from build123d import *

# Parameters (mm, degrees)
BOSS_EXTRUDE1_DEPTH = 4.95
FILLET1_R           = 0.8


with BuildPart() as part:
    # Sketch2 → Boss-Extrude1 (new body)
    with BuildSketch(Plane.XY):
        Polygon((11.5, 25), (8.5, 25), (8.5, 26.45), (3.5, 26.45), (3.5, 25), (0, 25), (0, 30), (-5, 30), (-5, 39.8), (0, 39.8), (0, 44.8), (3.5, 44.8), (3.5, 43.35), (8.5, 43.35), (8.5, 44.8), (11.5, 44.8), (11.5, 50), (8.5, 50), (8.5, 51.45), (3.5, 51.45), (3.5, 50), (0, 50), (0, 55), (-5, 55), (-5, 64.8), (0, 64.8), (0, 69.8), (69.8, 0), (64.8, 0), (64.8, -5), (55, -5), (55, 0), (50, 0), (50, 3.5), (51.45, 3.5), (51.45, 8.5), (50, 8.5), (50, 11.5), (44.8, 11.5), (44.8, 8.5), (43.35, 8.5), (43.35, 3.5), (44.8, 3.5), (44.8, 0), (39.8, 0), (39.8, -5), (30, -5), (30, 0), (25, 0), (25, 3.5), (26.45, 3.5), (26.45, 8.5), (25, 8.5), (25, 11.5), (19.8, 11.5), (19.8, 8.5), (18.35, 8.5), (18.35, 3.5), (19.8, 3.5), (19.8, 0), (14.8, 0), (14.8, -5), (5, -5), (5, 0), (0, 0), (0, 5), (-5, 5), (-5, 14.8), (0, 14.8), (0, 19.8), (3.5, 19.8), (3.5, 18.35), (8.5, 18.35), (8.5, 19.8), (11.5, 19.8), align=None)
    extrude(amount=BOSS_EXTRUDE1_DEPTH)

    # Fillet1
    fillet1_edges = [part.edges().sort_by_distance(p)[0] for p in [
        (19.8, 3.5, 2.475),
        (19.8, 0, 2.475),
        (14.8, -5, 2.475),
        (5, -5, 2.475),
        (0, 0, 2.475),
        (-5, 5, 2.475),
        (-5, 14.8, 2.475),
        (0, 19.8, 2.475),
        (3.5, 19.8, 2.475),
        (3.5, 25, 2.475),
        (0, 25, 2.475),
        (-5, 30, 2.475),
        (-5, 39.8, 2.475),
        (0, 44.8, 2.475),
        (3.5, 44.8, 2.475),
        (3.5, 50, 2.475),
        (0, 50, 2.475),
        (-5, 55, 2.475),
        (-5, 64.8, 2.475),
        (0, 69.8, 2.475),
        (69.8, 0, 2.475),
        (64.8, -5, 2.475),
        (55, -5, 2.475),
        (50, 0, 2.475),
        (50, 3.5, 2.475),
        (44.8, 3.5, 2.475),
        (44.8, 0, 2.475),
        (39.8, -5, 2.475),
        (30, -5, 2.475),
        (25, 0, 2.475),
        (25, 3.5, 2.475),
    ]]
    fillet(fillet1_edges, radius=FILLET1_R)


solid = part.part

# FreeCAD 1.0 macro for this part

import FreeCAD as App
import Part
import Sketcher

V = App.Vector
Q = App.Units.Quantity


def edges_at(feature, points):
    """Names of the edges that pass closest to the given points."""
    edges = feature.Shape.Edges
    near = lambda p: min(range(len(edges)), key=lambda i: edges[i].distToShape(Part.Vertex(*p))[0])
    return sorted({f"Edge{near(p) + 1}" for p in points})


def add_polygon(sketch, points):
    """Adds a closed chain of lines whose ends are joined by coincident constraints."""
    first, n = sketch.GeometryCount, len(points)
    for a, b in zip(points, points[1:] + points[:1]):
        sketch.addGeometry(Part.LineSegment(App.Vector(*a, 0), App.Vector(*b, 0)), False)
    for i in range(n):
        sketch.addConstraint(Sketcher.Constraint("Coincident", first + i, 2, first + (i + 1) % n, 1))

doc = App.newDocument("Part")
params = doc.addObject("Spreadsheet::Sheet", "Params")
for row, (alias, value) in enumerate([
    ("sketch1_width", "3 mm"),
    ("sketch1_width2", "5 mm"),
    ("sketch1_width3", "3.5 mm"),
    ("sketch1_width4", "9.8 mm"),
    ("sketch1_width5", "5.2 mm"),
    ("pad1_length", "4.95 mm"),
    ("fillet_radius", "0.8 mm"),
], start=1):
    params.set(f"A{row}", alias)
    params.set(f"B{row}", "=" + value)
    params.setAlias(f"B{row}", alias)

body = doc.addObject("PartDesign::Body", "Body")

sketch1 = body.newObject("Sketcher::SketchObject", "Sketch")
sketch1.AttachmentSupport = (doc.getObject("XY_Plane"), [""])
sketch1.MapMode = "FlatFace"
add_polygon(sketch1, [(8.5, 25), (11.5, 25), (11.5, 19.8), (8.5, 19.8), (8.5, 18.4), (3.5, 18.4), (3.5, 19.8), (0, 19.8), (0, 14.8), (-5, 14.8), (-5, 5), (0, 5), (0, 0), (5, 0), (5, -5), (14.8, -5), (14.8, 0), (19.8, 0), (19.8, 3.5), (18.4, 3.5), (18.4, 8.5), (19.8, 8.5), (19.8, 11.5), (25, 11.5), (25, 8.5), (26.4, 8.5), (26.4, 3.5), (25, 3.5), (25, 0), (30, 0), (30, -5), (39.8, -5), (39.8, 0), (44.8, 0), (44.8, 3.5), (43.4, 3.5), (43.4, 8.5), (44.8, 8.5), (44.8, 11.5), (50, 11.5), (50, 8.5), (51.5, 8.5), (51.5, 3.5), (50, 3.5), (50, 0), (55, 0), (55, -5), (64.8, -5), (64.8, 0), (69.8, 0), (0, 69.8), (0, 64.8), (-5, 64.8), (-5, 55), (0, 55), (0, 50), (3.5, 50), (3.5, 51.5), (8.5, 51.5), (8.5, 50), (11.5, 50), (11.5, 44.8), (8.5, 44.8), (8.5, 43.4), (3.5, 43.4), (3.5, 44.8), (0, 44.8), (0, 39.8), (-5, 39.8), (-5, 30), (0, 30), (0, 25), (3.5, 25), (3.5, 26.4), (8.5, 26.4)])
sketch1.addConstraint(Sketcher.Constraint("Horizontal", 0))
sketch1.addConstraint(Sketcher.Constraint("Vertical", 1))
sketch1.addConstraint(Sketcher.Constraint("Horizontal", 2))
sketch1.addConstraint(Sketcher.Constraint("Vertical", 3))
sketch1.addConstraint(Sketcher.Constraint("Horizontal", 4))
sketch1.addConstraint(Sketcher.Constraint("Vertical", 5))
sketch1.addConstraint(Sketcher.Constraint("Horizontal", 6))
sketch1.addConstraint(Sketcher.Constraint("Vertical", 7))
sketch1.addConstraint(Sketcher.Constraint("Horizontal", 8))
sketch1.addConstraint(Sketcher.Constraint("Vertical", 9))
sketch1.addConstraint(Sketcher.Constraint("Horizontal", 10))
sketch1.addConstraint(Sketcher.Constraint("Vertical", 11))
sketch1.addConstraint(Sketcher.Constraint("Horizontal", 12))
sketch1.addConstraint(Sketcher.Constraint("Vertical", 13))
sketch1.addConstraint(Sketcher.Constraint("Horizontal", 14))
sketch1.addConstraint(Sketcher.Constraint("Vertical", 15))
sketch1.addConstraint(Sketcher.Constraint("Horizontal", 16))
sketch1.addConstraint(Sketcher.Constraint("Vertical", 17))
sketch1.addConstraint(Sketcher.Constraint("Horizontal", 18))
sketch1.addConstraint(Sketcher.Constraint("Vertical", 19))
sketch1.addConstraint(Sketcher.Constraint("Horizontal", 20))
sketch1.addConstraint(Sketcher.Constraint("Vertical", 21))
sketch1.addConstraint(Sketcher.Constraint("Horizontal", 22))
sketch1.addConstraint(Sketcher.Constraint("Vertical", 23))
sketch1.addConstraint(Sketcher.Constraint("Horizontal", 24))
sketch1.addConstraint(Sketcher.Constraint("Vertical", 25))
sketch1.addConstraint(Sketcher.Constraint("Horizontal", 26))
sketch1.addConstraint(Sketcher.Constraint("Vertical", 27))
sketch1.addConstraint(Sketcher.Constraint("Horizontal", 28))
sketch1.addConstraint(Sketcher.Constraint("Vertical", 29))
sketch1.addConstraint(Sketcher.Constraint("Horizontal", 30))
sketch1.addConstraint(Sketcher.Constraint("Vertical", 31))
sketch1.addConstraint(Sketcher.Constraint("Horizontal", 32))
sketch1.addConstraint(Sketcher.Constraint("Vertical", 33))
sketch1.addConstraint(Sketcher.Constraint("Horizontal", 34))
sketch1.addConstraint(Sketcher.Constraint("Vertical", 35))
sketch1.addConstraint(Sketcher.Constraint("Horizontal", 36))
sketch1.addConstraint(Sketcher.Constraint("Vertical", 37))
sketch1.addConstraint(Sketcher.Constraint("Horizontal", 38))
sketch1.addConstraint(Sketcher.Constraint("Vertical", 39))
sketch1.addConstraint(Sketcher.Constraint("Horizontal", 40))
sketch1.addConstraint(Sketcher.Constraint("Vertical", 41))
sketch1.addConstraint(Sketcher.Constraint("Horizontal", 42))
sketch1.addConstraint(Sketcher.Constraint("Vertical", 43))
sketch1.addConstraint(Sketcher.Constraint("Horizontal", 44))
sketch1.addConstraint(Sketcher.Constraint("Vertical", 45))
sketch1.addConstraint(Sketcher.Constraint("Horizontal", 46))
sketch1.addConstraint(Sketcher.Constraint("Vertical", 47))
sketch1.addConstraint(Sketcher.Constraint("Horizontal", 48))
sketch1.addConstraint(Sketcher.Constraint("Vertical", 50))
sketch1.addConstraint(Sketcher.Constraint("Horizontal", 51))
sketch1.addConstraint(Sketcher.Constraint("Vertical", 52))
sketch1.addConstraint(Sketcher.Constraint("Horizontal", 53))
sketch1.addConstraint(Sketcher.Constraint("Vertical", 54))
sketch1.addConstraint(Sketcher.Constraint("Horizontal", 55))
sketch1.addConstraint(Sketcher.Constraint("Vertical", 56))
sketch1.addConstraint(Sketcher.Constraint("Horizontal", 57))
sketch1.addConstraint(Sketcher.Constraint("Vertical", 58))
sketch1.addConstraint(Sketcher.Constraint("Horizontal", 59))
sketch1.addConstraint(Sketcher.Constraint("Vertical", 60))
sketch1.addConstraint(Sketcher.Constraint("Horizontal", 61))
sketch1.addConstraint(Sketcher.Constraint("Vertical", 62))
sketch1.addConstraint(Sketcher.Constraint("Horizontal", 63))
sketch1.addConstraint(Sketcher.Constraint("Vertical", 64))
sketch1.addConstraint(Sketcher.Constraint("Horizontal", 65))
sketch1.addConstraint(Sketcher.Constraint("Vertical", 66))
sketch1.addConstraint(Sketcher.Constraint("Horizontal", 67))
sketch1.addConstraint(Sketcher.Constraint("Vertical", 68))
sketch1.addConstraint(Sketcher.Constraint("Horizontal", 69))
sketch1.addConstraint(Sketcher.Constraint("Vertical", 70))
sketch1.addConstraint(Sketcher.Constraint("Horizontal", 71))
sketch1.addConstraint(Sketcher.Constraint("Vertical", 72))
sketch1.addConstraint(Sketcher.Constraint("Horizontal", 73))
sketch1.addConstraint(Sketcher.Constraint("Vertical", 74))
sketch1.addConstraint(Sketcher.Constraint("Coincident", 11, 2, -1, 1))
sketch1.addConstraint(Sketcher.Constraint("Symmetric", 9, 2, 13, 2, -1, 1))
sketch1.addConstraint(Sketcher.Constraint("PointOnObject", 6, 2, -2))
sketch1.addConstraint(Sketcher.Constraint("PointOnObject", 15, 2, -1))
sketch1.addConstraint(Sketcher.Constraint("PointOnObject", 27, 2, -1))
sketch1.addConstraint(Sketcher.Constraint("PointOnObject", 31, 2, -1))
sketch1.addConstraint(Sketcher.Constraint("PointOnObject", 43, 2, -1))
sketch1.addConstraint(Sketcher.Constraint("PointOnObject", 47, 2, -1))
sketch1.addConstraint(Sketcher.Constraint("PointOnObject", 49, 2, -2))
sketch1.addConstraint(Sketcher.Constraint("PointOnObject", 53, 2, -2))
sketch1.addConstraint(Sketcher.Constraint("PointOnObject", 65, 2, -2))
sketch1.addConstraint(Sketcher.Constraint("PointOnObject", 69, 2, -2))
sketch1.addConstraint(Sketcher.Constraint("Horizontal", 2, 2, 5, 2))
sketch1.addConstraint(Sketcher.Constraint("Horizontal", 20, 2, 23, 2))
sketch1.addConstraint(Sketcher.Constraint("Horizontal", 18, 2, 25, 2))
sketch1.addConstraint(Sketcher.Constraint("Horizontal", 14, 2, 29, 2))
sketch1.addConstraint(Sketcher.Constraint("Horizontal", 26, 2, 33, 2))
sketch1.addConstraint(Sketcher.Constraint("Horizontal", 24, 2, 35, 2))
sketch1.addConstraint(Sketcher.Constraint("Horizontal", 22, 2, 37, 2))
sketch1.addConstraint(Sketcher.Constraint("Horizontal", 36, 2, 39, 2))
sketch1.addConstraint(Sketcher.Constraint("Horizontal", 34, 2, 41, 2))
sketch1.addConstraint(Sketcher.Constraint("Horizontal", 30, 2, 45, 2))
sketch1.addConstraint(Sketcher.Constraint("Horizontal", 55, 2, 58, 2))
sketch1.addConstraint(Sketcher.Constraint("Horizontal", 61, 2, 64, 2))
sketch1.addConstraint(Sketcher.Constraint("Horizontal", 0, 2, 70, 2))
sketch1.addConstraint(Sketcher.Constraint("Vertical", 17, 2, 20, 2))
sketch1.addConstraint(Sketcher.Constraint("Vertical", 23, 2, 26, 2))
sketch1.addConstraint(Sketcher.Constraint("Vertical", 33, 2, 36, 2))
sketch1.addConstraint(Sketcher.Constraint("Vertical", 39, 2, 42, 2))
sketch1.addConstraint(Sketcher.Constraint("Vertical", 9, 2, 51, 2))
sketch1.addConstraint(Sketcher.Constraint("Vertical", 5, 2, 55, 2))
sketch1.addConstraint(Sketcher.Constraint("Vertical", 3, 2, 57, 2))
sketch1.addConstraint(Sketcher.Constraint("Vertical", 1, 2, 59, 2))
sketch1.addConstraint(Sketcher.Constraint("Vertical", 58, 2, 61, 2))
sketch1.addConstraint(Sketcher.Constraint("Vertical", 56, 2, 63, 2))
sketch1.addConstraint(Sketcher.Constraint("Vertical", 52, 2, 67, 2))
sketch1.addConstraint(Sketcher.Constraint("Vertical", 64, 2, 71, 2))
sketch1.addConstraint(Sketcher.Constraint("Vertical", 62, 2, 73, 2))
sketch1.addConstraint(Sketcher.Constraint("Equal", 4, 8))
sketch1.addConstraint(Sketcher.Constraint("Equal", 12, 16))
sketch1.addConstraint(Sketcher.Constraint("Equal", 20, 24))
sketch1.addConstraint(Sketcher.Constraint("Equal", 16, 28))
sketch1.addConstraint(Sketcher.Constraint("Equal", 14, 30))
sketch1.addConstraint(Sketcher.Constraint("Equal", 28, 32))
sketch1.addConstraint(Sketcher.Constraint("Equal", 26, 34))
sketch1.addConstraint(Sketcher.Constraint("Equal", 22, 38))
sketch1.addConstraint(Sketcher.Constraint("Equal", 36, 40))
sketch1.addConstraint(Sketcher.Constraint("Equal", 32, 44))
sketch1.addConstraint(Sketcher.Constraint("Equal", 30, 46))
sketch1.addConstraint(Sketcher.Constraint("Equal", 44, 48))
sketch1.addConstraint(Sketcher.Constraint("Equal", 38, 1))
sketch1.addConstraint(Sketcher.Constraint("Equal", 42, 3))
sketch1.addConstraint(Sketcher.Constraint("Equal", 73, 7))
sketch1.addConstraint(Sketcher.Constraint("Equal", 46, 9))
sketch1.addConstraint(Sketcher.Constraint("Equal", 7, 11))
sketch1.addConstraint(Sketcher.Constraint("Equal", 71, 17))
sketch1.addConstraint(Sketcher.Constraint("Equal", 15, 19))
sketch1.addConstraint(Sketcher.Constraint("Equal", 61, 21))
sketch1.addConstraint(Sketcher.Constraint("Equal", 47, 50))
sketch1.addConstraint(Sketcher.Constraint("Equal", 9, 52))
sketch1.addConstraint(Sketcher.Constraint("Equal", 50, 54))
sketch1.addConstraint(Sketcher.Constraint("Equal", 5, 56))
sketch1.addConstraint(Sketcher.Constraint("Equal", 1, 60))
sketch1.addConstraint(Sketcher.Constraint("Equal", 58, 62))
sketch1.addConstraint(Sketcher.Constraint("Equal", 54, 66))
sketch1.addConstraint(Sketcher.Constraint("Equal", 52, 68))
sketch1.addConstraint(Sketcher.Constraint("Equal", 66, 70))
sketch1.addConstraint(Sketcher.Constraint("Equal", 64, 72))
sketch1.addConstraint(Sketcher.Constraint("DistanceX", 0, 1, 0, 2, Q("3 mm")))
sketch1.addConstraint(Sketcher.Constraint("DistanceX", 4, 2, 4, 1, Q("5 mm")))
sketch1.addConstraint(Sketcher.Constraint("DistanceX", 6, 2, 6, 1, Q("3.5 mm")))
sketch1.addConstraint(Sketcher.Constraint("DistanceX", 14, 1, 14, 2, Q("9.8 mm")))
sketch1.addConstraint(Sketcher.Constraint("DistanceX", 22, 1, 22, 2, Q("5.2 mm")))
sketch1.addConstraint(Sketcher.Constraint("DistanceX", 18, 2, 18, 1, Q("1.45 mm")))
sketch1.setExpression("Constraints[217]", "Params.sketch1_width")
sketch1.setExpression("Constraints[218]", "Params.sketch1_width2")
sketch1.setExpression("Constraints[219]", "Params.sketch1_width3")
sketch1.setExpression("Constraints[220]", "Params.sketch1_width4")
sketch1.setExpression("Constraints[221]", "Params.sketch1_width5")
pad1 = body.newObject("PartDesign::Pad", "Pad")
pad1.Profile = sketch1
pad1.setExpression("Length", "Params.pad1_length")
doc.recompute()

fillet = body.newObject("PartDesign::Fillet", "Fillet")
fillet.Base = (pad1, edges_at(pad1, [
    (19.8, 3.5, 2.475),
    (19.8, 0, 2.475),
    (14.8, -5, 2.475),
    (5, -5, 2.475),
    (0, 0, 2.475),
    (-5, 5, 2.475),
    (-5, 14.8, 2.475),
    (0, 19.8, 2.475),
    (3.5, 19.8, 2.475),
    (3.5, 25, 2.475),
    (0, 25, 2.475),
    (-5, 30, 2.475),
    (-5, 39.8, 2.475),
    (0, 44.8, 2.475),
    (3.5, 44.8, 2.475),
    (3.5, 50, 2.475),
    (0, 50, 2.475),
    (-5, 55, 2.475),
    (-5, 64.8, 2.475),
    (0, 69.8, 2.475),
    (69.8, 0, 2.475),
    (64.8, -5, 2.475),
    (55, -5, 2.475),
    (50, 0, 2.475),
    (50, 3.5, 2.475),
    (44.8, 3.5, 2.475),
    (44.8, 0, 2.475),
    (39.8, -5, 2.475),
    (30, -5, 2.475),
    (25, 0, 2.475),
    (25, 3.5, 2.475),
]))
fillet.setExpression("Radius", "Params.fillet_radius")

doc.recompute()
